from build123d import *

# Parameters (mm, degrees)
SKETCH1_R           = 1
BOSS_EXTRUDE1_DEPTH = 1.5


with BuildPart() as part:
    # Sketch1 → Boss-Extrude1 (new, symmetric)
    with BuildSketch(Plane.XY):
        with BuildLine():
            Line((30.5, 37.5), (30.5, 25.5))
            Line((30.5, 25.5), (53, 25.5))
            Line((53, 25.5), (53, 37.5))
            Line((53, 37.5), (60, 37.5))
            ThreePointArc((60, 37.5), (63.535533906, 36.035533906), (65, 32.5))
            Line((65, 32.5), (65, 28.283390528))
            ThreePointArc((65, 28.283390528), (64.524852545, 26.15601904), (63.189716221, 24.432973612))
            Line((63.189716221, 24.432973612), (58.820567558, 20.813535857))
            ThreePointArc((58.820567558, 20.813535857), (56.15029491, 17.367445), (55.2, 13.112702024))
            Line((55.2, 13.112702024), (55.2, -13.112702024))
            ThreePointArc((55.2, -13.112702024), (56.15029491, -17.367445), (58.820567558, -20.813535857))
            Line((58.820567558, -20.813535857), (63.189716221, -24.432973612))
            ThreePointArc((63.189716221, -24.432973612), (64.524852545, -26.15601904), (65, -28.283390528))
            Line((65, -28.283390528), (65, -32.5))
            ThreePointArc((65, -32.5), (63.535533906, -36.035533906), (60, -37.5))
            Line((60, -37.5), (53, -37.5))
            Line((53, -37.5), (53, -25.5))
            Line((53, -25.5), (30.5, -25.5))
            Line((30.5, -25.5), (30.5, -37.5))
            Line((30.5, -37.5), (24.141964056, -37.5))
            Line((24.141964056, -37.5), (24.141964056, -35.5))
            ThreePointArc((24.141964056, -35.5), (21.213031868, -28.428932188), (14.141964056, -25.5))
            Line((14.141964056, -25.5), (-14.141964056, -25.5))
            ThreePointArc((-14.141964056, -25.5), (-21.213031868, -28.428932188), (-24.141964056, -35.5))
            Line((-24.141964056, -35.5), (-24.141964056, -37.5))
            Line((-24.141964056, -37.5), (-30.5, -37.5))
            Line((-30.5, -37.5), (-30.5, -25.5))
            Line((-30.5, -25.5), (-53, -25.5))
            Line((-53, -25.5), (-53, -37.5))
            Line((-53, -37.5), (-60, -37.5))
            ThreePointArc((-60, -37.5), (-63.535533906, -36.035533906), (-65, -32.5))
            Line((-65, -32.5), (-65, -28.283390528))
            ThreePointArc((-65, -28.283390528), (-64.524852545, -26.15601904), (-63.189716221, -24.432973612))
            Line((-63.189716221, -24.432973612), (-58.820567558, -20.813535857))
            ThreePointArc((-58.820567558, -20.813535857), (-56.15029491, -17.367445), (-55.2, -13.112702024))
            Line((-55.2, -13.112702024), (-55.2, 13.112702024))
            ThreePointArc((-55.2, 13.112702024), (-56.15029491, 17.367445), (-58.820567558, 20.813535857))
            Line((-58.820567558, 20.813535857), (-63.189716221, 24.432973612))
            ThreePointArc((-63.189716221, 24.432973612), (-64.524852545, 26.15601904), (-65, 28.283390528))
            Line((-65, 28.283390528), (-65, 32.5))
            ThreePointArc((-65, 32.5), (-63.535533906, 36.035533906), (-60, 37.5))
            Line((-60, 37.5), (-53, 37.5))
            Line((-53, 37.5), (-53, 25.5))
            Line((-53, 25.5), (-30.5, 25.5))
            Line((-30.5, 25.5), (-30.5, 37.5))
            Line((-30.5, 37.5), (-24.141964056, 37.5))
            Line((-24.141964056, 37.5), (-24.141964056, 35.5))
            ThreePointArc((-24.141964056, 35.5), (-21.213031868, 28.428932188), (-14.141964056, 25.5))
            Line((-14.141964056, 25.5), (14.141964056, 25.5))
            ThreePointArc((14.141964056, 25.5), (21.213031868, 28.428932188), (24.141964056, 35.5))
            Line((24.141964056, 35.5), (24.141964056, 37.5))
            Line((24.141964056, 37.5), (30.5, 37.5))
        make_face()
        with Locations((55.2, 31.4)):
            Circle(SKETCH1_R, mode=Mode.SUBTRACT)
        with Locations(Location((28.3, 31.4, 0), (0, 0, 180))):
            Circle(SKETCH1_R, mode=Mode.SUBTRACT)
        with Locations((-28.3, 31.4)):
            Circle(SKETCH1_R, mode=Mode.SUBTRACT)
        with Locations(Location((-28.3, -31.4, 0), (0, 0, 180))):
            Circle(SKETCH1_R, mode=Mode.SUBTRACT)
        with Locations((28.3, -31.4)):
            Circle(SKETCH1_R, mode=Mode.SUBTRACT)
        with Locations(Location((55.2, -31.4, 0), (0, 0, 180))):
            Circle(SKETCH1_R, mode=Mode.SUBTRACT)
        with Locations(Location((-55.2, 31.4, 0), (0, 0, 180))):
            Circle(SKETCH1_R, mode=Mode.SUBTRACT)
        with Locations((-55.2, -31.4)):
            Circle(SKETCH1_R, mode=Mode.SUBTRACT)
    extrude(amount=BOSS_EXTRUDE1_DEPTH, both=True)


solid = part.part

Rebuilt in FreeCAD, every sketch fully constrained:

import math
import FreeCAD as App
import Part
import Sketcher
from FreeCAD import Vector

doc = App.newDocument("Part")
body = doc.addObject("PartDesign::Body", "Body")

# Sketch on XY plane
sketch1 = doc.addObject("Sketcher::SketchObject", "Sketch")
body.addObject(sketch1)
sketch1.AttachmentSupport = (doc.XY_Plane, [""])
sketch1.MapMode = "FlatFace"
sketch1.addGeometry(Part.LineSegment(Vector(30.5, 25.5, 0), Vector(30.5, 37.5, 0)), False)
sketch1.addGeometry(Part.LineSegment(Vector(30.5, 37.5, 0), Vector(24.1, 37.5, 0)), False)
sketch1.addGeometry(Part.LineSegment(Vector(24.1, 37.5, 0), Vector(24.1, 35.5, 0)), False)
sketch1.addGeometry(Part.ArcOfCircle(Part.Circle(Vector(14.1, 35.5, 0), Vector(0, 0, 1), 10), math.radians(-90), math.radians(0)), False)
sketch1.addGeometry(Part.LineSegment(Vector(14.1, 25.5, 0), Vector(-14.1, 25.5, 0)), False)
sketch1.addGeometry(Part.ArcOfCircle(Part.Circle(Vector(-14.1, 35.5, 0), Vector(0, 0, 1), 10), math.radians(180), math.radians(270)), False)
sketch1.addGeometry(Part.LineSegment(Vector(-24.1, 35.5, 0), Vector(-24.1, 37.5, 0)), False)
sketch1.addGeometry(Part.LineSegment(Vector(-24.1, 37.5, 0), Vector(-30.5, 37.5, 0)), False)
sketch1.addGeometry(Part.LineSegment(Vector(-30.5, 37.5, 0), Vector(-30.5, 25.5, 0)), False)
sketch1.addGeometry(Part.LineSegment(Vector(-30.5, 25.5, 0), Vector(-53, 25.5, 0)), False)
sketch1.addGeometry(Part.LineSegment(Vector(-53, 25.5, 0), Vector(-53, 37.5, 0)), False)
sketch1.addGeometry(Part.LineSegment(Vector(-53, 37.5, 0), Vector(-60, 37.5, 0)), False)
sketch1.addGeometry(Part.ArcOfCircle(Part.Circle(Vector(-60, 32.5, 0), Vector(0, 0, 1), 5), math.radians(90), math.radians(180)), False)
sketch1.addGeometry(Part.LineSegment(Vector(-65, 32.5, 0), Vector(-65, 28.3, 0)), False)
sketch1.addGeometry(Part.ArcOfCircle(Part.Circle(Vector(-60, 28.3, 0), Vector(0, 0, 1), 5), math.radians(180), math.radians(230)), False)
sketch1.addGeometry(Part.LineSegment(Vector(-63.2, 24.4, 0), Vector(-58.8, 20.8, 0)), False)
sketch1.addGeometry(Part.ArcOfCircle(Part.Circle(Vector(-65.2, 13.1, 0), Vector(0, 0, 1), 10), math.radians(0), math.radians(50)), False)
sketch1.addGeometry(Part.LineSegment(Vector(-55.2, 13.1, 0), Vector(-55.2, -13.1, 0)), False)
sketch1.addGeometry(Part.ArcOfCircle(Part.Circle(Vector(-65.2, -13.1, 0), Vector(0, 0, 1), 10), math.radians(-50), math.radians(0)), False)
sketch1.addGeometry(Part.LineSegment(Vector(-58.8, -20.8, 0), Vector(-63.2, -24.4, 0)), False)
sketch1.addGeometry(Part.ArcOfCircle(Part.Circle(Vector(-60, -28.3, 0), Vector(0, 0, 1), 5), math.radians(130), math.radians(180)), False)
sketch1.addGeometry(Part.LineSegment(Vector(-65, -28.3, 0), Vector(-65, -32.5, 0)), False)
sketch1.addGeometry(Part.ArcOfCircle(Part.Circle(Vector(-60, -32.5, 0), Vector(0, 0, 1), 5), math.radians(180), math.radians(270)), False)
sketch1.addGeometry(Part.LineSegment(Vector(-60, -37.5, 0), Vector(-53, -37.5, 0)), False)
sketch1.addGeometry(Part.LineSegment(Vector(-53, -37.5, 0), Vector(-53, -25.5, 0)), False)
sketch1.addGeometry(Part.LineSegment(Vector(-53, -25.5, 0), Vector(-30.5, -25.5, 0)), False)
sketch1.addGeometry(Part.LineSegment(Vector(-30.5, -25.5, 0), Vector(-30.5, -37.5, 0)), False)
sketch1.addGeometry(Part.LineSegment(Vector(-30.5, -37.5, 0), Vector(-24.1, -37.5, 0)), False)
sketch1.addGeometry(Part.LineSegment(Vector(-24.1, -37.5, 0), Vector(-24.1, -35.5, 0)), False)
sketch1.addGeometry(Part.ArcOfCircle(Part.Circle(Vector(-14.1, -35.5, 0), Vector(0, 0, 1), 10), math.radians(90), math.radians(180)), False)
sketch1.addGeometry(Part.LineSegment(Vector(-14.1, -25.5, 0), Vector(14.1, -25.5, 0)), False)
sketch1.addGeometry(Part.ArcOfCircle(Part.Circle(Vector(14.1, -35.5, 0), Vector(0, 0, 1), 10), math.radians(0), math.radians(90)), False)
sketch1.addGeometry(Part.LineSegment(Vector(24.1, -35.5, 0), Vector(24.1, -37.5, 0)), False)
sketch1.addGeometry(Part.LineSegment(Vector(24.1, -37.5, 0), Vector(30.5, -37.5, 0)), False)
sketch1.addGeometry(Part.LineSegment(Vector(30.5, -37.5, 0), Vector(30.5, -25.5, 0)), False)
sketch1.addGeometry(Part.LineSegment(Vector(30.5, -25.5, 0), Vector(53, -25.5, 0)), False)
sketch1.addGeometry(Part.LineSegment(Vector(53, -25.5, 0), Vector(53, -37.5, 0)), False)
sketch1.addGeometry(Part.LineSegment(Vector(53, -37.5, 0), Vector(60, -37.5, 0)), False)
sketch1.addGeometry(Part.ArcOfCircle(Part.Circle(Vector(60, -32.5, 0), Vector(0, 0, 1), 5), math.radians(-90), math.radians(0)), False)
sketch1.addGeometry(Part.LineSegment(Vector(65, -32.5, 0), Vector(65, -28.3, 0)), False)
sketch1.addGeometry(Part.ArcOfCircle(Part.Circle(Vector(60, -28.3, 0), Vector(0, 0, 1), 5), math.radians(0), math.radians(50)), False)
sketch1.addGeometry(Part.LineSegment(Vector(63.2, -24.4, 0), Vector(58.8, -20.8, 0)), False)
sketch1.addGeometry(Part.ArcOfCircle(Part.Circle(Vector(65.2, -13.1, 0), Vector(0, 0, 1), 10), math.radians(180), math.radians(230)), False)
sketch1.addGeometry(Part.LineSegment(Vector(55.2, -13.1, 0), Vector(55.2, 13.1, 0)), False)
sketch1.addGeometry(Part.ArcOfCircle(Part.Circle(Vector(65.2, 13.1, 0), Vector(0, 0, 1), 10), math.radians(130), math.radians(180)), False)
sketch1.addGeometry(Part.LineSegment(Vector(58.8, 20.8, 0), Vector(63.2, 24.4, 0)), False)
sketch1.addGeometry(Part.ArcOfCircle(Part.Circle(Vector(60, 28.3, 0), Vector(0, 0, 1), 5), math.radians(-50), math.radians(0)), False)
sketch1.addGeometry(Part.LineSegment(Vector(65, 28.3, 0), Vector(65, 32.5, 0)), False)
sketch1.addGeometry(Part.ArcOfCircle(Part.Circle(Vector(60, 32.5, 0), Vector(0, 0, 1), 5), math.radians(0), math.radians(90)), False)
sketch1.addGeometry(Part.LineSegment(Vector(60, 37.5, 0), Vector(53, 37.5, 0)), False)
sketch1.addGeometry(Part.LineSegment(Vector(53, 37.5, 0), Vector(53, 25.5, 0)), False)
sketch1.addGeometry(Part.LineSegment(Vector(53, 25.5, 0), Vector(30.5, 25.5, 0)), False)
sketch1.addGeometry(Part.Circle(Vector(55.2, -31.4, 0), Vector(0, 0, 1), 1), False)
sketch1.addGeometry(Part.Circle(Vector(28.3, -31.4, 0), Vector(0, 0, 1), 1), False)
sketch1.addGeometry(Part.Circle(Vector(-28.3, -31.4, 0), Vector(0, 0, 1), 1), False)
sketch1.addGeometry(Part.Circle(Vector(-55.2, -31.4, 0), Vector(0, 0, 1), 1), False)
sketch1.addGeometry(Part.Circle(Vector(55.2, 31.4, 0), Vector(0, 0, 1), 1), False)
sketch1.addGeometry(Part.Circle(Vector(28.3, 31.4, 0), Vector(0, 0, 1), 1), False)
sketch1.addGeometry(Part.Circle(Vector(-28.3, 31.4, 0), Vector(0, 0, 1), 1), False)
sketch1.addGeometry(Part.Circle(Vector(-55.2, 31.4, 0), Vector(0, 0, 1), 1), False)
sketch1.addConstraint(Sketcher.Constraint("Coincident", 0, 2, 1, 1))
sketch1.addConstraint(Sketcher.Constraint("Coincident", 1, 2, 2, 1))
sketch1.addConstraint(Sketcher.Constraint("Tangent", 2, 2, 3, 2))
sketch1.addConstraint(Sketcher.Constraint("Tangent", 3, 1, 4, 1))
sketch1.addConstraint(Sketcher.Constraint("Tangent", 4, 2, 5, 2))
sketch1.addConstraint(Sketcher.Constraint("Tangent", 5, 1, 6, 1))
sketch1.addConstraint(Sketcher.Constraint("Coincident", 6, 2, 7, 1))
sketch1.addConstraint(Sketcher.Constraint("Coincident", 7, 2, 8, 1))
sketch1.addConstraint(Sketcher.Constraint("Coincident", 8, 2, 9, 1))
sketch1.addConstraint(Sketcher.Constraint("Coincident", 9, 2, 10, 1))
sketch1.addConstraint(Sketcher.Constraint("Coincident", 10, 2, 11, 1))
sketch1.addConstraint(Sketcher.Constraint("Tangent", 11, 2, 12, 1))
sketch1.addConstraint(Sketcher.Constraint("Tangent", 12, 2, 13, 1))
sketch1.addConstraint(Sketcher.Constraint("Tangent", 13, 2, 14, 1))
sketch1.addConstraint(Sketcher.Constraint("Tangent", 14, 2, 15, 1))
sketch1.addConstraint(Sketcher.Constraint("Tangent", 15, 2, 16, 2))
sketch1.addConstraint(Sketcher.Constraint("Tangent", 16, 1, 17, 1))
sketch1.addConstraint(Sketcher.Constraint("Tangent", 17, 2, 18, 2))
sketch1.addConstraint(Sketcher.Constraint("Tangent", 18, 1, 19, 1))
sketch1.addConstraint(Sketcher.Constraint("Tangent", 19, 2, 20, 1))
sketch1.addConstraint(Sketcher.Constraint("Tangent", 20, 2, 21, 1))
sketch1.addConstraint(Sketcher.Constraint("Tangent", 21, 2, 22, 1))
sketch1.addConstraint(Sketcher.Constraint("Tangent", 22, 2, 23, 1))
sketch1.addConstraint(Sketcher.Constraint("Coincident", 23, 2, 24, 1))
sketch1.addConstraint(Sketcher.Constraint("Coincident", 24, 2, 25, 1))
sketch1.addConstraint(Sketcher.Constraint("Coincident", 25, 2, 26, 1))
sketch1.addConstraint(Sketcher.Constraint("Coincident", 26, 2, 27, 1))
sketch1.addConstraint(Sketcher.Constraint("Coincident", 27, 2, 28, 1))
sketch1.addConstraint(Sketcher.Constraint("Tangent", 28, 2, 29, 2))
sketch1.addConstraint(Sketcher.Constraint("Tangent", 29, 1, 30, 1))
sketch1.addConstraint(Sketcher.Constraint("Tangent", 30, 2, 31, 2))
sketch1.addConstraint(Sketcher.Constraint("Tangent", 31, 1, 32, 1))
sketch1.addConstraint(Sketcher.Constraint("Coincident", 32, 2, 33, 1))
sketch1.addConstraint(Sketcher.Constraint("Coincident", 33, 2, 34, 1))
sketch1.addConstraint(Sketcher.Constraint("Coincident", 34, 2, 35, 1))
sketch1.addConstraint(Sketcher.Constraint("Coincident", 35, 2, 36, 1))
sketch1.addConstraint(Sketcher.Constraint("Coincident", 36, 2, 37, 1))
sketch1.addConstraint(Sketcher.Constraint("Tangent", 37, 2, 38, 1))
sketch1.addConstraint(Sketcher.Constraint("Tangent", 38, 2, 39, 1))
sketch1.addConstraint(Sketcher.Constraint("Tangent", 39, 2, 40, 1))
sketch1.addConstraint(Sketcher.Constraint("Tangent", 40, 2, 41, 1))
sketch1.addConstraint(Sketcher.Constraint("Tangent", 41, 2, 42, 2))
sketch1.addConstraint(Sketcher.Constraint("Tangent", 42, 1, 43, 1))
sketch1.addConstraint(Sketcher.Constraint("Tangent", 43, 2, 44, 2))
sketch1.addConstraint(Sketcher.Constraint("Tangent", 44, 1, 45, 1))
sketch1.addConstraint(Sketcher.Constraint("Tangent", 45, 2, 46, 1))
sketch1.addConstraint(Sketcher.Constraint("Tangent", 46, 2, 47, 1))
sketch1.addConstraint(Sketcher.Constraint("Tangent", 47, 2, 48, 1))
sketch1.addConstraint(Sketcher.Constraint("Tangent", 48, 2, 49, 1))
sketch1.addConstraint(Sketcher.Constraint("Coincident", 49, 2, 50, 1))
sketch1.addConstraint(Sketcher.Constraint("Coincident", 50, 2, 51, 1))
sketch1.addConstraint(Sketcher.Constraint("Coincident", 51, 2, 0, 1))
sketch1.addConstraint(Sketcher.Constraint("Vertical", 0))
sketch1.addConstraint(Sketcher.Constraint("Horizontal", 1))
sketch1.addConstraint(Sketcher.Constraint("Vertical", 2))
sketch1.addConstraint(Sketcher.Constraint("Horizontal", 4))
sketch1.addConstraint(Sketcher.Constraint("Vertical", 6))
sketch1.addConstraint(Sketcher.Constraint("Horizontal", 7))
sketch1.addConstraint(Sketcher.Constraint("Vertical", 8))
sketch1.addConstraint(Sketcher.Constraint("Horizontal", 9))
sketch1.addConstraint(Sketcher.Constraint("Vertical", 10))
sketch1.addConstraint(Sketcher.Constraint("Horizontal", 11))
sketch1.addConstraint(Sketcher.Constraint("Vertical", 13))
sketch1.addConstraint(Sketcher.Constraint("Vertical", 17))
sketch1.addConstraint(Sketcher.Constraint("Vertical", 21))
sketch1.addConstraint(Sketcher.Constraint("Horizontal", 23))
sketch1.addConstraint(Sketcher.Constraint("Vertical", 24))
sketch1.addConstraint(Sketcher.Constraint("Horizontal", 25))
sketch1.addConstraint(Sketcher.Constraint("Vertical", 26))
sketch1.addConstraint(Sketcher.Constraint("Horizontal", 27))
sketch1.addConstraint(Sketcher.Constraint("Vertical", 28))
sketch1.addConstraint(Sketcher.Constraint("Horizontal", 30))
sketch1.addConstraint(Sketcher.Constraint("Vertical", 32))
sketch1.addConstraint(Sketcher.Constraint("Horizontal", 33))
sketch1.addConstraint(Sketcher.Constraint("Vertical", 34))
sketch1.addConstraint(Sketcher.Constraint("Horizontal", 35))
sketch1.addConstraint(Sketcher.Constraint("Vertical", 36))
sketch1.addConstraint(Sketcher.Constraint("Horizontal", 37))
sketch1.addConstraint(Sketcher.Constraint("Vertical", 39))
sketch1.addConstraint(Sketcher.Constraint("Vertical", 43))
sketch1.addConstraint(Sketcher.Constraint("Vertical", 47))
sketch1.addConstraint(Sketcher.Constraint("Horizontal", 49))
sketch1.addConstraint(Sketcher.Constraint("Vertical", 50))
sketch1.addConstraint(Sketcher.Constraint("Horizontal", 51))
sketch1.addConstraint(Sketcher.Constraint("Equal", 3, 5))
sketch1.addConstraint(Sketcher.Constraint("Equal", 12, 14))
sketch1.addConstraint(Sketcher.Constraint("Equal", 5, 16))
sketch1.addConstraint(Sketcher.Constraint("Equal", 16, 18))
sketch1.addConstraint(Sketcher.Constraint("Equal", 14, 20))
sketch1.addConstraint(Sketcher.Constraint("Equal", 20, 22))
sketch1.addConstraint(Sketcher.Constraint("Equal", 18, 29))
sketch1.addConstraint(Sketcher.Constraint("Equal", 29, 31))
sketch1.addConstraint(Sketcher.Constraint("Equal", 22, 38))
sketch1.addConstraint(Sketcher.Constraint("Equal", 38, 40))
sketch1.addConstraint(Sketcher.Constraint("Equal", 31, 42))
sketch1.addConstraint(Sketcher.Constraint("Equal", 42, 44))
sketch1.addConstraint(Sketcher.Constraint("Equal", 40, 46))
sketch1.addConstraint(Sketcher.Constraint("Equal", 46, 48))
sketch1.addConstraint(Sketcher.Constraint("Equal", 52, 53))
sketch1.addConstraint(Sketcher.Constraint("Equal", 53, 54))
sketch1.addConstraint(Sketcher.Constraint("Equal", 54, 55))
sketch1.addConstraint(Sketcher.Constraint("Equal", 55, 56))
sketch1.addConstraint(Sketcher.Constraint("Equal", 56, 57))
sketch1.addConstraint(Sketcher.Constraint("Equal", 57, 58))
sketch1.addConstraint(Sketcher.Constraint("Equal", 58, 59))
sketch1.addConstraint(Sketcher.Constraint("Symmetric", 3, 3, 29, 3, -1, 1))
sketch1.addConstraint(Sketcher.Constraint("Symmetric", 12, 3, 38, 3, -1, 1))
sketch1.addConstraint(Sketcher.Constraint("Symmetric", 16, 3, 42, 3, -1, 1))
sketch1.addConstraint(Sketcher.Constraint("Symmetric", 20, 3, 46, 3, -1, 1))
sketch1.addConstraint(Sketcher.Constraint("Symmetric", 55, 3, 56, 3, -1, 1))
sketch1.addConstraint(Sketcher.Constraint("Symmetric", 54, 3, 57, 3, -1, 1))
sketch1.addConstraint(Sketcher.Constraint("Symmetric", 53, 3, 58, 3, -1, 1))
sketch1.addConstraint(Sketcher.Constraint("Symmetric", 52, 3, 59, 3, -1, 1))
sketch1.addConstraint(Sketcher.Constraint("Symmetric", 0, 2, 26, 2, -1, 1))
sketch1.addConstraint(Sketcher.Constraint("Symmetric", 6, 2, 32, 2, -1, 1))
sketch1.addConstraint(Sketcher.Constraint("Symmetric", 8, 2, 34, 2, -1, 1))
sketch1.addConstraint(Sketcher.Constraint("Symmetric", 23, 2, 49, 2, -1, 1))
sketch1.addConstraint(Sketcher.Constraint("Symmetric", 22, 3, 38, 3, -2))
sketch1.addConstraint(Sketcher.Constraint("Symmetric", 53, 3, 54, 3, -2))
sketch1.addConstraint(Sketcher.Constraint("Symmetric", 52, 3, 55, 3, -2))
sketch1.addConstraint(Sketcher.Constraint("Symmetric", 1, 2, 6, 2, -2))
sketch1.addConstraint(Sketcher.Constraint("Symmetric", 25, 2, 34, 2, -2))
sketch1.addConstraint(Sketcher.Constraint("Symmetric", 19, 2, 40, 2, -2))
sketch1.addConstraint(Sketcher.Constraint("Symmetric", 15, 2, 44, 1, -2))
sketch1.addConstraint(Sketcher.Constraint("Symmetric", 9, 2, 50, 2, -2))
sketch1.addConstraint(Sketcher.Constraint("Horizontal", 52, 3, 53, 3))
sketch1.addConstraint(Sketcher.Constraint("Horizontal", 4, 2, 8, 2))
sketch1.addConstraint(Sketcher.Constraint("Horizontal", 7, 2, 10, 2))
sketch1.addConstraint(Sketcher.Constraint("Vertical", 59, 3, 16, 1))
sketch1.addConstraint(Sketcher.Constraint("Vertical", 36, 2, 49, 2))
sketch1.addConstraint(Sketcher.Constraint("Diameter", 52, 2.0))
sketch1.addConstraint(Sketcher.Constraint("Radius", 3, 10.0))
sketch1.addConstraint(Sketcher.Constraint("Radius", 12, 5.0))
sketch1.addConstraint(Sketcher.Constraint("DistanceX", 11, 2, 11, 1, 7.0))
sketch1.addConstraint(Sketcher.Constraint("DistanceY", 0, 1, 0, 2, 12.0))
sketch1.addConstraint(Sketcher.Constraint("DistanceX", 9, 2, 9, 1, 22.5))
sketch1.addConstraint(Sketcher.Constraint("DistanceX", 12, 3, -1, 1, 60.0))
sketch1.addConstraint(Sketcher.Constraint("DistanceY", -1, 1, 3, 3, 35.5))
sketch1.addConstraint(Sketcher.Constraint("DistanceX", 16, 3, -1, 1, 65.2))
sketch1.addConstraint(Sketcher.Constraint("DistanceY", 52, 3, -1, 1, 31.4))
sketch1.addConstraint(Sketcher.Constraint("DistanceX", -1, 1, 53, 3, 28.3))
sketch1.addConstraint(Sketcher.Constraint("DistanceX", 4, 2, 4, 1, 28.283928))
sketch1.addConstraint(Sketcher.Constraint("DistanceY", 13, 2, 13, 1, 4.216609))
sketch1.addConstraint(Sketcher.Constraint("DistanceY", 17, 2, 17, 1, 26.225404))
pad1 = doc.addObject("PartDesign::Pad", "Pad")
body.addObject(pad1)
pad1.Profile = sketch1
pad1.Length = 3
pad1.Midplane = True

doc.recompute()
